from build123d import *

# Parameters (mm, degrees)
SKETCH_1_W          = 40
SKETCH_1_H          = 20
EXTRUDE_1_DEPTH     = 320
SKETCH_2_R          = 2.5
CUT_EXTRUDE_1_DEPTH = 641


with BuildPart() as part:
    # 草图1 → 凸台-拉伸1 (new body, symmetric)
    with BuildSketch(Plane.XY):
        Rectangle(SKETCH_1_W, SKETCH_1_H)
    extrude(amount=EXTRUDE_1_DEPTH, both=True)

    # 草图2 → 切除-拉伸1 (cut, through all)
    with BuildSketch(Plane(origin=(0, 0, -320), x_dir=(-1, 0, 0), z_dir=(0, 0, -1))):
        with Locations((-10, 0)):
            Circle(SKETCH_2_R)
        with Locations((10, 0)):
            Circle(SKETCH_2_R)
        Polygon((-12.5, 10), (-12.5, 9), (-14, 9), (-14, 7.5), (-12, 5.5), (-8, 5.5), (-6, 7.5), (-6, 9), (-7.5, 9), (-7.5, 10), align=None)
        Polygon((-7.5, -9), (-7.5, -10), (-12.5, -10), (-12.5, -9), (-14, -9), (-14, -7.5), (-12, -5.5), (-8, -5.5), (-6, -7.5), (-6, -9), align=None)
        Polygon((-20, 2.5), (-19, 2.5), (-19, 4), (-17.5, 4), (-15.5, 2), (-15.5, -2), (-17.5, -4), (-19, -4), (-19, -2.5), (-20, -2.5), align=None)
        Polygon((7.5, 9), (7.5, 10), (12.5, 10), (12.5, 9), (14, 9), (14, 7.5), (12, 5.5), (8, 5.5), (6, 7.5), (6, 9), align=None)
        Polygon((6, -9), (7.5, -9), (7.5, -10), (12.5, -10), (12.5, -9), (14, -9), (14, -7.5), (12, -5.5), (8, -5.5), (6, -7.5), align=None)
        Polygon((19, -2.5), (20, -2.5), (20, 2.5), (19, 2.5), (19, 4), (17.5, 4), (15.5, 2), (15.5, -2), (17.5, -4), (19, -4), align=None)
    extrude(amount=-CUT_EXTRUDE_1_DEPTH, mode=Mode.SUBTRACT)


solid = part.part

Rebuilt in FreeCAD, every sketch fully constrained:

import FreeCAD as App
import Part
import Sketcher
from FreeCAD import Vector

doc = App.newDocument("Part")
body = doc.addObject("PartDesign::Body", "Body")

# Sketch on XY plane
sketch1 = doc.addObject("Sketcher::SketchObject", "Sketch")
body.addObject(sketch1)
sketch1.AttachmentSupport = (doc.XY_Plane, [""])
sketch1.MapMode = "FlatFace"
sketch1.addGeometry([
    Part.LineSegment(Vector(-20, 10, 0), Vector(-20, -10, 0)),
    Part.LineSegment(Vector(-20, -10, 0), Vector(20, -10, 0)),
    Part.LineSegment(Vector(20, -10, 0), Vector(20, 10, 0)),
    Part.LineSegment(Vector(20, 10, 0), Vector(-20, 10, 0)),
], False)
sketch1.addConstraint([
    Sketcher.Constraint("Coincident", 0, 2, 1, 1),
    Sketcher.Constraint("Coincident", 1, 2, 2, 1),
    Sketcher.Constraint("Coincident", 2, 2, 3, 1),
    Sketcher.Constraint("Coincident", 3, 2, 0, 1),
    Sketcher.Constraint("Vertical", 0),
    Sketcher.Constraint("Horizontal", 1),
    Sketcher.Constraint("Vertical", 2),
    Sketcher.Constraint("Horizontal", 3),
    Sketcher.Constraint("Symmetric", 0, 2, 2, 2, -1, 1),
    Sketcher.Constraint("DistanceX", 1, 1, 1, 2, 40.0),
    Sketcher.Constraint("DistanceY", 0, 2, 0, 1, 20.0),
])
pad1 = doc.addObject("PartDesign::Pad", "Pad")
body.addObject(pad1)
pad1.Profile = sketch1
pad1.Length = 640
pad1.Midplane = True

# Sketch on XY plane
sketch2 = doc.addObject("Sketcher::SketchObject", "Sketch001")
body.addObject(sketch2)
sketch2.AttachmentSupport = (doc.XY_Plane, [""])
sketch2.MapMode = "FlatFace"
sketch2.AttachmentOffset = App.Placement(Vector(0, 0, -320), App.Rotation())
sketch2.addGeometry([
    Part.Circle(Vector(10, 0, 0), Vector(0, 0, 1), 2.5),  # 0
    Part.Circle(Vector(-10, 0, 0), Vector(0, 0, 1), 2.5),  # 1
    Part.LineSegment(Vector(12.5, 10, 0), Vector(12.5, 9, 0)),  # 2
    Part.LineSegment(Vector(12.5, 9, 0), Vector(14, 9, 0)),  # 3
    Part.LineSegment(Vector(14, 9, 0), Vector(14, 7.5, 0)),  # 4
    Part.LineSegment(Vector(14, 7.5, 0), Vector(12, 5.5, 0)),  # 5
    Part.LineSegment(Vector(12, 5.5, 0), Vector(8, 5.5, 0)),  # 6
    Part.LineSegment(Vector(8, 5.5, 0), Vector(6, 7.5, 0)),  # 7
    Part.LineSegment(Vector(6, 7.5, 0), Vector(6, 9, 0)),  # 8
    Part.LineSegment(Vector(6, 9, 0), Vector(7.5, 9, 0)),  # 9
    Part.LineSegment(Vector(7.5, 9, 0), Vector(7.5, 10, 0)),  # 10
    Part.LineSegment(Vector(7.5, 10, 0), Vector(12.5, 10, 0)),  # 11
    Part.LineSegment(Vector(7.5, -10, 0), Vector(7.5, -9, 0)),  # 12
    Part.LineSegment(Vector(7.5, -9, 0), Vector(6, -9, 0)),  # 13
    Part.LineSegment(Vector(6, -9, 0), Vector(6, -7.5, 0)),  # 14
    Part.LineSegment(Vector(6, -7.5, 0), Vector(8, -5.5, 0)),  # 15
    Part.LineSegment(Vector(8, -5.5, 0), Vector(12, -5.5, 0)),  # 16
    Part.LineSegment(Vector(12, -5.5, 0), Vector(14, -7.5, 0)),  # 17
    Part.LineSegment(Vector(14, -7.5, 0), Vector(14, -9, 0)),  # 18
    Part.LineSegment(Vector(14, -9, 0), Vector(12.5, -9, 0)),  # 19
    Part.LineSegment(Vector(12.5, -9, 0), Vector(12.5, -10, 0)),  # 20
    Part.LineSegment(Vector(12.5, -10, 0), Vector(7.5, -10, 0)),  # 21
    Part.LineSegment(Vector(19, 2.5, 0), Vector(20, 2.5, 0)),  # 22
    Part.LineSegment(Vector(20, 2.5, 0), Vector(20, -2.5, 0)),  # 23
    Part.LineSegment(Vector(20, -2.5, 0), Vector(19, -2.5, 0)),  # 24
    Part.LineSegment(Vector(19, -2.5, 0), Vector(19, -4, 0)),  # 25
    Part.LineSegment(Vector(19, -4, 0), Vector(17.5, -4, 0)),  # 26
    Part.LineSegment(Vector(17.5, -4, 0), Vector(15.5, -2, 0)),  # 27
    Part.LineSegment(Vector(15.5, -2, 0), Vector(15.5, 2, 0)),  # 28
    Part.LineSegment(Vector(15.5, 2, 0), Vector(17.5, 4, 0)),  # 29
    Part.LineSegment(Vector(17.5, 4, 0), Vector(19, 4, 0)),  # 30
    Part.LineSegment(Vector(19, 4, 0), Vector(19, 2.5, 0)),  # 31
    Part.LineSegment(Vector(-7.5, 10, 0), Vector(-7.5, 9, 0)),  # 32
    Part.LineSegment(Vector(-7.5, 9, 0), Vector(-6, 9, 0)),  # 33
    Part.LineSegment(Vector(-6, 9, 0), Vector(-6, 7.5, 0)),  # 34
    Part.LineSegment(Vector(-6, 7.5, 0), Vector(-8, 5.5, 0)),  # 35
    Part.LineSegment(Vector(-8, 5.5, 0), Vector(-12, 5.5, 0)),  # 36
    Part.LineSegment(Vector(-12, 5.5, 0), Vector(-14, 7.5, 0)),  # 37
    Part.LineSegment(Vector(-14, 7.5, 0), Vector(-14, 9, 0)),  # 38
    Part.LineSegment(Vector(-14, 9, 0), Vector(-12.5, 9, 0)),  # 39
    Part.LineSegment(Vector(-12.5, 9, 0), Vector(-12.5, 10, 0)),  # 40
    Part.LineSegment(Vector(-12.5, 10, 0), Vector(-7.5, 10, 0)),  # 41
    Part.LineSegment(Vector(-6, -9, 0), Vector(-7.5, -9, 0)),  # 42
    Part.LineSegment(Vector(-7.5, -9, 0), Vector(-7.5, -10, 0)),  # 43
    Part.LineSegment(Vector(-7.5, -10, 0), Vector(-12.5, -10, 0)),  # 44
    Part.LineSegment(Vector(-12.5, -10, 0), Vector(-12.5, -9, 0)),  # 45
    Part.LineSegment(Vector(-12.5, -9, 0), Vector(-14, -9, 0)),  # 46
    Part.LineSegment(Vector(-14, -9, 0), Vector(-14, -7.5, 0)),  # 47
    Part.LineSegment(Vector(-14, -7.5, 0), Vector(-12, -5.5, 0)),  # 48
    Part.LineSegment(Vector(-12, -5.5, 0), Vector(-8, -5.5, 0)),  # 49
    Part.LineSegment(Vector(-8, -5.5, 0), Vector(-6, -7.5, 0)),  # 50
    Part.LineSegment(Vector(-6, -7.5, 0), Vector(-6, -9, 0)),  # 51
    Part.LineSegment(Vector(-19, -2.5, 0), Vector(-20, -2.5, 0)),  # 52
    Part.LineSegment(Vector(-20, -2.5, 0), Vector(-20, 2.5, 0)),  # 53
    Part.LineSegment(Vector(-20, 2.5, 0), Vector(-19, 2.5, 0)),  # 54
    Part.LineSegment(Vector(-19, 2.5, 0), Vector(-19, 4, 0)),  # 55
    Part.LineSegment(Vector(-19, 4, 0), Vector(-17.5, 4, 0)),  # 56
    Part.LineSegment(Vector(-17.5, 4, 0), Vector(-15.5, 2, 0)),  # 57
    Part.LineSegment(Vector(-15.5, 2, 0), Vector(-15.5, -2, 0)),  # 58
    Part.LineSegment(Vector(-15.5, -2, 0), Vector(-17.5, -4, 0)),  # 59
    Part.LineSegment(Vector(-17.5, -4, 0), Vector(-19, -4, 0)),  # 60
    Part.LineSegment(Vector(-19, -4, 0), Vector(-19, -2.5, 0)),  # 61
], False)
sketch2.addConstraint([
    Sketcher.Constraint("Coincident", 2, 2, 3, 1),
    Sketcher.Constraint("Coincident", 3, 2, 4, 1),
    Sketcher.Constraint("Coincident", 4, 2, 5, 1),
    Sketcher.Constraint("Coincident", 5, 2, 6, 1),
    Sketcher.Constraint("Coincident", 6, 2, 7, 1),
    Sketcher.Constraint("Coincident", 7, 2, 8, 1),
    Sketcher.Constraint("Coincident", 8, 2, 9, 1),
    Sketcher.Constraint("Coincident", 9, 2, 10, 1),
    Sketcher.Constraint("Coincident", 10, 2, 11, 1),
    Sketcher.Constraint("Coincident", 11, 2, 2, 1),
    Sketcher.Constraint("Coincident", 12, 2, 13, 1),
    Sketcher.Constraint("Coincident", 13, 2, 14, 1),
    Sketcher.Constraint("Coincident", 14, 2, 15, 1),
    Sketcher.Constraint("Coincident", 15, 2, 16, 1),
    Sketcher.Constraint("Coincident", 16, 2, 17, 1),
    Sketcher.Constraint("Coincident", 17, 2, 18, 1),
    Sketcher.Constraint("Coincident", 18, 2, 19, 1),
    Sketcher.Constraint("Coincident", 19, 2, 20, 1),
    Sketcher.Constraint("Coincident", 20, 2, 21, 1),
    Sketcher.Constraint("Coincident", 21, 2, 12, 1),
    Sketcher.Constraint("Coincident", 22, 2, 23, 1),
    Sketcher.Constraint("Coincident", 23, 2, 24, 1),
    Sketcher.Constraint("Coincident", 24, 2, 25, 1),
    Sketcher.Constraint("Coincident", 25, 2, 26, 1),
    Sketcher.Constraint("Coincident", 26, 2, 27, 1),
    Sketcher.Constraint("Coincident", 27, 2, 28, 1),
    Sketcher.Constraint("Coincident", 28, 2, 29, 1),
    Sketcher.Constraint("Coincident", 29, 2, 30, 1),
    Sketcher.Constraint("Coincident", 30, 2, 31, 1),
    Sketcher.Constraint("Coincident", 31, 2, 22, 1),
    Sketcher.Constraint("Coincident", 32, 2, 33, 1),
    Sketcher.Constraint("Coincident", 33, 2, 34, 1),
    Sketcher.Constraint("Coincident", 34, 2, 35, 1),
    Sketcher.Constraint("Coincident", 35, 2, 36, 1),
    Sketcher.Constraint("Coincident", 36, 2, 37, 1),
    Sketcher.Constraint("Coincident", 37, 2, 38, 1),
    Sketcher.Constraint("Coincident", 38, 2, 39, 1),
    Sketcher.Constraint("Coincident", 39, 2, 40, 1),
    Sketcher.Constraint("Coincident", 40, 2, 41, 1),
    Sketcher.Constraint("Coincident", 41, 2, 32, 1),
    Sketcher.Constraint("Coincident", 42, 2, 43, 1),
    Sketcher.Constraint("Coincident", 43, 2, 44, 1),
    Sketcher.Constraint("Coincident", 44, 2, 45, 1),
    Sketcher.Constraint("Coincident", 45, 2, 46, 1),
    Sketcher.Constraint("Coincident", 46, 2, 47, 1),
    Sketcher.Constraint("Coincident", 47, 2, 48, 1),
    Sketcher.Constraint("Coincident", 48, 2, 49, 1),
    Sketcher.Constraint("Coincident", 49, 2, 50, 1),
    Sketcher.Constraint("Coincident", 50, 2, 51, 1),
    Sketcher.Constraint("Coincident", 51, 2, 42, 1),
    Sketcher.Constraint("Coincident", 52, 2, 53, 1),
    Sketcher.Constraint("Coincident", 53, 2, 54, 1),
    Sketcher.Constraint("Coincident", 54, 2, 55, 1),
    Sketcher.Constraint("Coincident", 55, 2, 56, 1),
    Sketcher.Constraint("Coincident", 56, 2, 57, 1),
    Sketcher.Constraint("Coincident", 57, 2, 58, 1),
    Sketcher.Constraint("Coincident", 58, 2, 59, 1),
    Sketcher.Constraint("Coincident", 59, 2, 60, 1),
    Sketcher.Constraint("Coincident", 60, 2, 61, 1),
    Sketcher.Constraint("Coincident", 61, 2, 52, 1),
    Sketcher.Constraint("Vertical", 2),
    Sketcher.Constraint("Horizontal", 3),
    Sketcher.Constraint("Vertical", 4),
    Sketcher.Constraint("Horizontal", 6),
    Sketcher.Constraint("Vertical", 8),
    Sketcher.Constraint("Horizontal", 9),
    Sketcher.Constraint("Vertical", 10),
    Sketcher.Constraint("Horizontal", 11),
    Sketcher.Constraint("Vertical", 12),
    Sketcher.Constraint("Horizontal", 13),
    Sketcher.Constraint("Vertical", 14),
    Sketcher.Constraint("Horizontal", 16),
    Sketcher.Constraint("Vertical", 18),
    Sketcher.Constraint("Horizontal", 19),
    Sketcher.Constraint("Vertical", 20),
    Sketcher.Constraint("Horizontal", 21),
    Sketcher.Constraint("Horizontal", 22),
    Sketcher.Constraint("Vertical", 23),
    Sketcher.Constraint("Horizontal", 24),
    Sketcher.Constraint("Vertical", 25),
    Sketcher.Constraint("Horizontal", 26),
    Sketcher.Constraint("Vertical", 28),
    Sketcher.Constraint("Horizontal", 30),
    Sketcher.Constraint("Vertical", 31),
    Sketcher.Constraint("Vertical", 32),
    Sketcher.Constraint("Horizontal", 33),
    Sketcher.Constraint("Vertical", 34),
    Sketcher.Constraint("Horizontal", 36),
    Sketcher.Constraint("Vertical", 38),
    Sketcher.Constraint("Horizontal", 39),
    Sketcher.Constraint("Vertical", 40),
    Sketcher.Constraint("Horizontal", 41),
    Sketcher.Constraint("Horizontal", 42),
    Sketcher.Constraint("Vertical", 43),
    Sketcher.Constraint("Horizontal", 44),
    Sketcher.Constraint("Vertical", 45),
    Sketcher.Constraint("Horizontal", 46),
    Sketcher.Constraint("Vertical", 47),
    Sketcher.Constraint("Horizontal", 49),
    Sketcher.Constraint("Vertical", 51),
    Sketcher.Constraint("Horizontal", 52),
    Sketcher.Constraint("Vertical", 53),
    Sketcher.Constraint("Horizontal", 54),
    Sketcher.Constraint("Vertical", 55),
    Sketcher.Constraint("Horizontal", 56),
    Sketcher.Constraint("Vertical", 58),
    Sketcher.Constraint("Horizontal", 60),
    Sketcher.Constraint("Vertical", 61),
    Sketcher.Constraint("Equal", 0, 1),
    Sketcher.Constraint("Symmetric", 0, 3, 1, 3, -1, 1),
    Sketcher.Constraint("Symmetric", 12, 2, 32, 2, -1, 1),
    Sketcher.Constraint("Symmetric", 14, 2, 34, 2, -1, 1),
    Sketcher.Constraint("Symmetric", 15, 2, 35, 2, -1, 1),
    Sketcher.Constraint("Symmetric", 17, 2, 37, 2, -1, 1),
    Sketcher.Constraint("Symmetric", 19, 2, 39, 2, -1, 1),
    Sketcher.Constraint("Symmetric", 9, 2, 42, 2, -1, 1),
    Sketcher.Constraint("Symmetric", 11, 2, 44, 2, -1, 1),
    Sketcher.Constraint("Symmetric", 3, 2, 46, 2, -1, 1),
    Sketcher.Constraint("Symmetric", 5, 2, 48, 2, -1, 1),
    Sketcher.Constraint("Symmetric", 7, 2, 50, 2, -1, 1),
    Sketcher.Constraint("Symmetric", 22, 2, 52, 2, -1, 1),
    Sketcher.Constraint("Symmetric", 24, 2, 54, 2, -1, 1),
    Sketcher.Constraint("Symmetric", 26, 2, 56, 2, -1, 1),
    Sketcher.Constraint("Symmetric", 27, 2, 57, 2, -1, 1),
    Sketcher.Constraint("Symmetric", 29, 2, 59, 2, -1, 1),
    Sketcher.Constraint("Symmetric", 9, 2, 32, 2, -2),
    Sketcher.Constraint("Symmetric", 7, 2, 34, 2, -2),
    Sketcher.Constraint("Symmetric", 6, 2, 35, 2, -2),
    Sketcher.Constraint("Symmetric", 4, 2, 37, 2, -2),
    Sketcher.Constraint("Symmetric", 2, 2, 39, 2, -2),
    Sketcher.Constraint("Symmetric", 31, 2, 54, 2, -2),
    Sketcher.Constraint("Symmetric", 29, 2, 56, 2, -2),
    Sketcher.Constraint("PointOnObject", 0, 3, -1),
    Sketcher.Constraint("Perpendicular", 5, 7),
    Sketcher.Constraint("Perpendicular", 7, 15),
    Sketcher.Constraint("Perpendicular", 15, 17),
    Sketcher.Constraint("Parallel", 17, 27),
    Sketcher.Constraint("Perpendicular", 27, 29),
    Sketcher.Constraint("Perpendicular", 35, 37),
    Sketcher.Constraint("Perpendicular", 37, 48),
    Sketcher.Constraint("Perpendicular", 48, 50),
    Sketcher.Constraint("Perpendicular", 57, 59),
    Sketcher.Constraint("Horizontal", 4, 2, 7, 2),
    Sketcher.Constraint("Horizontal", 3, 2, 8, 2),
    Sketcher.Constraint("Horizontal", 11, 2, 40, 2),
    Sketcher.Constraint("Horizontal", 21, 2, 43, 2),
    Sketcher.Constraint("Vertical", 55, 2, 60, 2),
    Sketcher.Constraint("Equal", 3, 9),
    Sketcher.Constraint("Equal", 19, 26),
    Sketcher.Constraint("Equal", 54, 2),
    Sketcher.Constraint("Equal", 60, 4),
    Sketcher.Constraint("Equal", 44, 23),
    Sketcher.Constraint("Equal", 18, 25),
    Sketcher.Constraint("Equal", 49, 28),
    Sketcher.Constraint("Diameter", 0, 5.0),
    Sketcher.Constraint("DistanceX", 6, 2, 6, 1, 4.0),
    Sketcher.Constraint("DistanceX", 11, 1, 11, 2, 5.0),
    Sketcher.Constraint("DistanceX", 22, 1, 22, 2, 1.0),
    Sketcher.Constraint("DistanceX", 3, 1, 3, 2, 1.5),
    Sketcher.Constraint("DistanceX", -1, 1, 0, 3, 10.0),
    Sketcher.Constraint("DistanceY", -1, 1, 2, 2, 9.0),
    Sketcher.Constraint("DistanceX", -1, 1, 3, 2, 14.0),
    Sketcher.Constraint("DistanceX", -1, 1, 22, 2, 20.0),
])
pocket1 = doc.addObject("PartDesign::Pocket", "Pocket")
body.addObject(pocket1)
pocket1.Profile = sketch2
pocket1.Type = "ThroughAll"
pocket1.Reversed = True

doc.recompute()
